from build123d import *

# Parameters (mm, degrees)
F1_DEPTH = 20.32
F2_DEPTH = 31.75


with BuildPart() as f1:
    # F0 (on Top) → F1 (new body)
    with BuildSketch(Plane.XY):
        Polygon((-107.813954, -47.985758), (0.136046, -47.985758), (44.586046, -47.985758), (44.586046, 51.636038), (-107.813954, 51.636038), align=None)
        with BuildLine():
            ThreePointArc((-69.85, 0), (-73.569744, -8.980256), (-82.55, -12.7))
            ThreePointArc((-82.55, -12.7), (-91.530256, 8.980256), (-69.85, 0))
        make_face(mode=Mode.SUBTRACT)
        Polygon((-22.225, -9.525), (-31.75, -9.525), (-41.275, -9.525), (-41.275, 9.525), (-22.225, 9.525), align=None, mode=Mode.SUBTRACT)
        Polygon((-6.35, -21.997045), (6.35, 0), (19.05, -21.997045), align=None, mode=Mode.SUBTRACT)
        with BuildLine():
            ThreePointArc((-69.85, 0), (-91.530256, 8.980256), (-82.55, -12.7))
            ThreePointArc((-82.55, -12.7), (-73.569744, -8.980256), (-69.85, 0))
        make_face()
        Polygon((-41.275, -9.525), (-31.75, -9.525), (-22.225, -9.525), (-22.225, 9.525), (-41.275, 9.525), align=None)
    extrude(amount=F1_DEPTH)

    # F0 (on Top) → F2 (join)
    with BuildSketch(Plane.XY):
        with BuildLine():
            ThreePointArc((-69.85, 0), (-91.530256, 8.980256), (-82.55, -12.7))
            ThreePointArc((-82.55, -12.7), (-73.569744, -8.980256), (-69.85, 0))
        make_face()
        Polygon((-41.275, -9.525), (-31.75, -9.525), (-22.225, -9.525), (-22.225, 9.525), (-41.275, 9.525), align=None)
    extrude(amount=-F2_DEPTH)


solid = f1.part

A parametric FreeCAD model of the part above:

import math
import FreeCAD as App
import Part
import Sketcher
from FreeCAD import Vector
Q = App.Units.Quantity

doc = App.newDocument("Part")
params = doc.addObject("Spreadsheet::Sheet", "Params")
for row, (alias, value) in enumerate([
    ("sketch1_width", "6 in"),
    ("sketch1_width2", "1 in"),
    ("sketch1_length", "1 in"),
    ("pad1_length", "0.8 in"),
    ("sketch2_radius", "0.5 in"),
    ("sketch2_width", "0.75 in"),
    ("pad2_length", "1.25 in"),
], start=1):
    params.set(f"A{row}", alias)
    params.set(f"B{row}", "=" + value)
    params.setAlias(f"B{row}", alias)

body = doc.addObject("PartDesign::Body", "Body")

# Sketch on XY plane
sketch1 = body.newObject("Sketcher::SketchObject", "Sketch")
sketch1.AttachmentSupport = (doc.getObject("XY_Plane"), [""])
sketch1.MapMode = "FlatFace"
sketch1.addGeometry(Part.LineSegment(Vector(-108, -48, 0), Vector(45, -48, 0)), False)
sketch1.addGeometry(Part.LineSegment(Vector(45, -48, 0), Vector(45, 52, 0)), False)
sketch1.addGeometry(Part.LineSegment(Vector(45, 52, 0), Vector(-108, 52, 0)), False)
sketch1.addGeometry(Part.LineSegment(Vector(-108, 52, 0), Vector(-108, -48, 0)), False)
sketch1.addGeometry(Part.LineSegment(Vector(19, -22, 0), Vector(-6, -22, 0)), False)
sketch1.addGeometry(Part.LineSegment(Vector(-6, -22, 0), Vector(6, 0, 0)), False)
sketch1.addGeometry(Part.LineSegment(Vector(6, 0, 0), Vector(19, -22, 0)), False)
sketch1.addConstraint(Sketcher.Constraint("Coincident", 0, 2, 1, 1))
sketch1.addConstraint(Sketcher.Constraint("Coincident", 1, 2, 2, 1))
sketch1.addConstraint(Sketcher.Constraint("Coincident", 2, 2, 3, 1))
sketch1.addConstraint(Sketcher.Constraint("Coincident", 3, 2, 0, 1))
sketch1.addConstraint(Sketcher.Constraint("Coincident", 4, 2, 5, 1))
sketch1.addConstraint(Sketcher.Constraint("Coincident", 5, 2, 6, 1))
sketch1.addConstraint(Sketcher.Constraint("Coincident", 6, 2, 4, 1))
sketch1.addConstraint(Sketcher.Constraint("Horizontal", 0))
sketch1.addConstraint(Sketcher.Constraint("Vertical", 1))
sketch1.addConstraint(Sketcher.Constraint("Horizontal", 2))
sketch1.addConstraint(Sketcher.Constraint("Vertical", 3))
sketch1.addConstraint(Sketcher.Constraint("Horizontal", 4))
sketch1.addConstraint(Sketcher.Constraint("PointOnObject", 5, 2, -1))
sketch1.addConstraint(Sketcher.Constraint("Equal", 5, 6))
sketch1.addConstraint(Sketcher.Constraint("DistanceX", 0, 1, 0, 2, Q("6 in")))
sketch1.addConstraint(Sketcher.Constraint("DistanceX", 4, 2, 4, 1, Q("1 in")))
sketch1.addConstraint(Sketcher.Constraint("Distance", 5, Q("1 in")))
sketch1.addConstraint(Sketcher.Constraint("DistanceX", 4, 2, -1, 1, Q("0.25 in")))
sketch1.addConstraint(Sketcher.Constraint("DistanceY", 1, 1, 1, 2, 99.621796))
sketch1.addConstraint(Sketcher.Constraint("DistanceX", -1, 1, 0, 2, 44.586046))
sketch1.addConstraint(Sketcher.Constraint("DistanceY", 0, 2, -1, 1, 47.985758))
sketch1.setExpression("Constraints[14]", "Params.sketch1_width")
sketch1.setExpression("Constraints[15]", "Params.sketch1_width2")
sketch1.setExpression("Constraints[16]", "Params.sketch1_length")
pad1 = body.newObject("PartDesign::Pad", "Pad")
pad1.Profile = sketch1
pad1.setExpression("Length", "Params.pad1_length")

# Sketch on XY plane
sketch2 = body.newObject("Sketcher::SketchObject", "Sketch001")
sketch2.AttachmentSupport = (doc.getObject("XY_Plane"), [""])
sketch2.MapMode = "FlatFace"
sketch2.addGeometry(Part.ArcOfCircle(Part.Circle(Vector(-83, 0, 0), Vector(0, 0, 1), 13), math.radians(0), math.radians(270)), False)
sketch2.addGeometry(Part.ArcOfCircle(Part.Circle(Vector(-83, 0, 0), Vector(0, 0, 1), 13), math.radians(-90), math.radians(0)), False)
sketch2.addGeometry(Part.LineSegment(Vector(-41, -10, 0), Vector(-22, -10, 0)), False)
sketch2.addGeometry(Part.LineSegment(Vector(-22, -10, 0), Vector(-22, 10, 0)), False)
sketch2.addGeometry(Part.LineSegment(Vector(-22, 10, 0), Vector(-41, 10, 0)), False)
sketch2.addGeometry(Part.LineSegment(Vector(-41, 10, 0), Vector(-41, -10, 0)), False)
sketch2.addConstraint(Sketcher.Constraint("Tangent", 0, 1, 1, 2))
sketch2.addConstraint(Sketcher.Constraint("Coincident", 1, 1, 0, 2))
sketch2.addConstraint(Sketcher.Constraint("Coincident", 2, 2, 3, 1))
sketch2.addConstraint(Sketcher.Constraint("Coincident", 3, 2, 4, 1))
sketch2.addConstraint(Sketcher.Constraint("Coincident", 4, 2, 5, 1))
sketch2.addConstraint(Sketcher.Constraint("Coincident", 5, 2, 2, 1))
sketch2.addConstraint(Sketcher.Constraint("Horizontal", 2))
sketch2.addConstraint(Sketcher.Constraint("Vertical", 3))
sketch2.addConstraint(Sketcher.Constraint("Horizontal", 4))
sketch2.addConstraint(Sketcher.Constraint("Vertical", 5))
sketch2.addConstraint(Sketcher.Constraint("PointOnObject", 0, 3, -1))
sketch2.addConstraint(Sketcher.Constraint("PointOnObject", 0, 1, -1))
sketch2.addConstraint(Sketcher.Constraint("Vertical", 0, 3, 1, 1))
sketch2.addConstraint(Sketcher.Constraint("Equal", 4, 3))
sketch2.addConstraint(Sketcher.Constraint("Radius", 0, Q("0.5 in")))
sketch2.addConstraint(Sketcher.Constraint("DistanceX", 2, 1, 2, 2, Q("0.75 in")))
sketch2.addConstraint(Sketcher.Constraint("DistanceX", 0, 3, -1, 1, Q("3.25 in")))
sketch2.addConstraint(Sketcher.Constraint("DistanceX", 2, 2, -1, 1, Q("0.875 in")))
sketch2.addConstraint(Sketcher.Constraint("DistanceY", 2, 2, -1, 1, Q("0.375 in")))
sketch2.setExpression("Constraints[14]", "Params.sketch2_radius")
sketch2.setExpression("Constraints[15]", "Params.sketch2_width")
pad2 = body.newObject("PartDesign::Pad", "Pad001")
pad2.Profile = sketch2
pad2.setExpression("Length", "Params.pad2_length")
pad2.Reversed = True

doc.recompute()
